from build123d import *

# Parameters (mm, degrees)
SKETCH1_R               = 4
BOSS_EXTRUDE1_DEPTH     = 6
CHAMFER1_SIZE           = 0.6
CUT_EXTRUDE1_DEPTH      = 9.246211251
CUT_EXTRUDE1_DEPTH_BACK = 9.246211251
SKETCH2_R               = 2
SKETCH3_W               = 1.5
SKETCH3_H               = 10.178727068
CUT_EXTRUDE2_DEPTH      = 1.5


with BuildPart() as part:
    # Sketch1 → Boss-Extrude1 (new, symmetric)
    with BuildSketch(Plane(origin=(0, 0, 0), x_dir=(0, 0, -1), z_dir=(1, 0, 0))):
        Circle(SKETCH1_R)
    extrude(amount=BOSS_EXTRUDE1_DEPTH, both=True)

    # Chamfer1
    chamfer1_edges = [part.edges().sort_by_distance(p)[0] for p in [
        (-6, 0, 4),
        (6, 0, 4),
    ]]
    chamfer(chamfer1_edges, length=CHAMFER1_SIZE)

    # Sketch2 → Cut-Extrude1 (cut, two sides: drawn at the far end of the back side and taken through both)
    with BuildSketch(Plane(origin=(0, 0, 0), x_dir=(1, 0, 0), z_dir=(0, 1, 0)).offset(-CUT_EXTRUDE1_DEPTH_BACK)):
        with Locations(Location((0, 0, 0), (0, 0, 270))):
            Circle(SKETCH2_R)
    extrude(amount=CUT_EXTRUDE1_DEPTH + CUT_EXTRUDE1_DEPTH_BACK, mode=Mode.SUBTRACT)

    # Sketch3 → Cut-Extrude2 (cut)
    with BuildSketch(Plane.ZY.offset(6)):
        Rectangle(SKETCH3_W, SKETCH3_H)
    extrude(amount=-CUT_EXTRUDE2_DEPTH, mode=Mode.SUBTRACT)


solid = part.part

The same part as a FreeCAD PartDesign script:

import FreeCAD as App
import Part
import Sketcher

V = App.Vector
Q = App.Units.Quantity


def edges_at(feature, points):
    """Names of the edges that pass closest to the given points."""
    edges = feature.Shape.Edges
    near = lambda p: min(range(len(edges)), key=lambda i: edges[i].distToShape(Part.Vertex(*p))[0])
    return sorted({f"Edge{near(p) + 1}" for p in points})


def add_polygon(sketch, points):
    """Adds a closed chain of lines whose ends are joined by coincident constraints."""
    first, n = sketch.GeometryCount, len(points)
    for a, b in zip(points, points[1:] + points[:1]):
        sketch.addGeometry(Part.LineSegment(App.Vector(*a, 0), App.Vector(*b, 0)), False)
    for i in range(n):
        sketch.addConstraint(Sketcher.Constraint("Coincident", first + i, 2, first + (i + 1) % n, 1))

doc = App.newDocument("Part")
body = doc.addObject("PartDesign::Body", "Body")

sketch1 = body.newObject("Sketcher::SketchObject", "Sketch")
sketch1.AttachmentSupport = (doc.getObject("YZ_Plane"), [""])
sketch1.MapMode = "FlatFace"
sketch1.addGeometry(Part.Circle(V(0, 0, 0), V(0, 0, 1), 4), False)
sketch1.addConstraint([
    Sketcher.Constraint("Coincident", 0, 3, -1, 1),
    Sketcher.Constraint("Diameter", 0, Q("8 mm")),
])
pad1 = body.newObject("PartDesign::Pad", "Pad")
pad1.Profile = sketch1
pad1.Length = 12
pad1.Midplane = True
doc.recompute()

chamfer = body.newObject("PartDesign::Chamfer", "Chamfer")
chamfer.Base = (pad1, edges_at(pad1, [(-6, 0, 4), (6, 0, 4)]))
chamfer.Size = 0.6

sketch2 = body.newObject("Sketcher::SketchObject", "Sketch001")
sketch2.AttachmentSupport = (doc.getObject("XZ_Plane"), [""])
sketch2.MapMode = "FlatFace"
sketch2.addGeometry(Part.Circle(V(0, 0, 0), V(0, 0, 1), 2), False)
sketch2.addConstraint([
    Sketcher.Constraint("Coincident", 0, 3, -1, 1),
    Sketcher.Constraint("Diameter", 0, Q("4 mm")),
])
pocket1 = body.newObject("PartDesign::Pocket", "Pocket")
pocket1.Profile = sketch2
pocket1.Type = "ThroughAll"
pocket1.Midplane = True

sketch3 = body.newObject("Sketcher::SketchObject", "Sketch002")
sketch3.AttachmentSupport = (doc.getObject("YZ_Plane"), [""])
sketch3.MapMode = "FlatFace"
sketch3.AttachmentOffset = App.Placement(V(0, 0, -6), App.Rotation())
add_polygon(sketch3, [(5.1, -0.8), (-5.1, -0.8), (-5.1, 0.8), (5.1, 0.8)])
sketch3.addConstraint([
    Sketcher.Constraint("Horizontal", 0),
    Sketcher.Constraint("Vertical", 1),
    Sketcher.Constraint("Horizontal", 2),
    Sketcher.Constraint("Vertical", 3),
    Sketcher.Constraint("Symmetric", 0, 2, 2, 2, -1, 1),
    Sketcher.Constraint("DistanceY", 1, 1, 1, 2, Q("1.5 mm")),
    Sketcher.Constraint("DistanceX", 0, 2, 0, 1, Q("10.178727 mm")),
])
pocket2 = body.newObject("PartDesign::Pocket", "Pocket001")
pocket2.Profile = sketch3
pocket2.Length = 1.5
pocket2.Reversed = True

doc.recompute()
